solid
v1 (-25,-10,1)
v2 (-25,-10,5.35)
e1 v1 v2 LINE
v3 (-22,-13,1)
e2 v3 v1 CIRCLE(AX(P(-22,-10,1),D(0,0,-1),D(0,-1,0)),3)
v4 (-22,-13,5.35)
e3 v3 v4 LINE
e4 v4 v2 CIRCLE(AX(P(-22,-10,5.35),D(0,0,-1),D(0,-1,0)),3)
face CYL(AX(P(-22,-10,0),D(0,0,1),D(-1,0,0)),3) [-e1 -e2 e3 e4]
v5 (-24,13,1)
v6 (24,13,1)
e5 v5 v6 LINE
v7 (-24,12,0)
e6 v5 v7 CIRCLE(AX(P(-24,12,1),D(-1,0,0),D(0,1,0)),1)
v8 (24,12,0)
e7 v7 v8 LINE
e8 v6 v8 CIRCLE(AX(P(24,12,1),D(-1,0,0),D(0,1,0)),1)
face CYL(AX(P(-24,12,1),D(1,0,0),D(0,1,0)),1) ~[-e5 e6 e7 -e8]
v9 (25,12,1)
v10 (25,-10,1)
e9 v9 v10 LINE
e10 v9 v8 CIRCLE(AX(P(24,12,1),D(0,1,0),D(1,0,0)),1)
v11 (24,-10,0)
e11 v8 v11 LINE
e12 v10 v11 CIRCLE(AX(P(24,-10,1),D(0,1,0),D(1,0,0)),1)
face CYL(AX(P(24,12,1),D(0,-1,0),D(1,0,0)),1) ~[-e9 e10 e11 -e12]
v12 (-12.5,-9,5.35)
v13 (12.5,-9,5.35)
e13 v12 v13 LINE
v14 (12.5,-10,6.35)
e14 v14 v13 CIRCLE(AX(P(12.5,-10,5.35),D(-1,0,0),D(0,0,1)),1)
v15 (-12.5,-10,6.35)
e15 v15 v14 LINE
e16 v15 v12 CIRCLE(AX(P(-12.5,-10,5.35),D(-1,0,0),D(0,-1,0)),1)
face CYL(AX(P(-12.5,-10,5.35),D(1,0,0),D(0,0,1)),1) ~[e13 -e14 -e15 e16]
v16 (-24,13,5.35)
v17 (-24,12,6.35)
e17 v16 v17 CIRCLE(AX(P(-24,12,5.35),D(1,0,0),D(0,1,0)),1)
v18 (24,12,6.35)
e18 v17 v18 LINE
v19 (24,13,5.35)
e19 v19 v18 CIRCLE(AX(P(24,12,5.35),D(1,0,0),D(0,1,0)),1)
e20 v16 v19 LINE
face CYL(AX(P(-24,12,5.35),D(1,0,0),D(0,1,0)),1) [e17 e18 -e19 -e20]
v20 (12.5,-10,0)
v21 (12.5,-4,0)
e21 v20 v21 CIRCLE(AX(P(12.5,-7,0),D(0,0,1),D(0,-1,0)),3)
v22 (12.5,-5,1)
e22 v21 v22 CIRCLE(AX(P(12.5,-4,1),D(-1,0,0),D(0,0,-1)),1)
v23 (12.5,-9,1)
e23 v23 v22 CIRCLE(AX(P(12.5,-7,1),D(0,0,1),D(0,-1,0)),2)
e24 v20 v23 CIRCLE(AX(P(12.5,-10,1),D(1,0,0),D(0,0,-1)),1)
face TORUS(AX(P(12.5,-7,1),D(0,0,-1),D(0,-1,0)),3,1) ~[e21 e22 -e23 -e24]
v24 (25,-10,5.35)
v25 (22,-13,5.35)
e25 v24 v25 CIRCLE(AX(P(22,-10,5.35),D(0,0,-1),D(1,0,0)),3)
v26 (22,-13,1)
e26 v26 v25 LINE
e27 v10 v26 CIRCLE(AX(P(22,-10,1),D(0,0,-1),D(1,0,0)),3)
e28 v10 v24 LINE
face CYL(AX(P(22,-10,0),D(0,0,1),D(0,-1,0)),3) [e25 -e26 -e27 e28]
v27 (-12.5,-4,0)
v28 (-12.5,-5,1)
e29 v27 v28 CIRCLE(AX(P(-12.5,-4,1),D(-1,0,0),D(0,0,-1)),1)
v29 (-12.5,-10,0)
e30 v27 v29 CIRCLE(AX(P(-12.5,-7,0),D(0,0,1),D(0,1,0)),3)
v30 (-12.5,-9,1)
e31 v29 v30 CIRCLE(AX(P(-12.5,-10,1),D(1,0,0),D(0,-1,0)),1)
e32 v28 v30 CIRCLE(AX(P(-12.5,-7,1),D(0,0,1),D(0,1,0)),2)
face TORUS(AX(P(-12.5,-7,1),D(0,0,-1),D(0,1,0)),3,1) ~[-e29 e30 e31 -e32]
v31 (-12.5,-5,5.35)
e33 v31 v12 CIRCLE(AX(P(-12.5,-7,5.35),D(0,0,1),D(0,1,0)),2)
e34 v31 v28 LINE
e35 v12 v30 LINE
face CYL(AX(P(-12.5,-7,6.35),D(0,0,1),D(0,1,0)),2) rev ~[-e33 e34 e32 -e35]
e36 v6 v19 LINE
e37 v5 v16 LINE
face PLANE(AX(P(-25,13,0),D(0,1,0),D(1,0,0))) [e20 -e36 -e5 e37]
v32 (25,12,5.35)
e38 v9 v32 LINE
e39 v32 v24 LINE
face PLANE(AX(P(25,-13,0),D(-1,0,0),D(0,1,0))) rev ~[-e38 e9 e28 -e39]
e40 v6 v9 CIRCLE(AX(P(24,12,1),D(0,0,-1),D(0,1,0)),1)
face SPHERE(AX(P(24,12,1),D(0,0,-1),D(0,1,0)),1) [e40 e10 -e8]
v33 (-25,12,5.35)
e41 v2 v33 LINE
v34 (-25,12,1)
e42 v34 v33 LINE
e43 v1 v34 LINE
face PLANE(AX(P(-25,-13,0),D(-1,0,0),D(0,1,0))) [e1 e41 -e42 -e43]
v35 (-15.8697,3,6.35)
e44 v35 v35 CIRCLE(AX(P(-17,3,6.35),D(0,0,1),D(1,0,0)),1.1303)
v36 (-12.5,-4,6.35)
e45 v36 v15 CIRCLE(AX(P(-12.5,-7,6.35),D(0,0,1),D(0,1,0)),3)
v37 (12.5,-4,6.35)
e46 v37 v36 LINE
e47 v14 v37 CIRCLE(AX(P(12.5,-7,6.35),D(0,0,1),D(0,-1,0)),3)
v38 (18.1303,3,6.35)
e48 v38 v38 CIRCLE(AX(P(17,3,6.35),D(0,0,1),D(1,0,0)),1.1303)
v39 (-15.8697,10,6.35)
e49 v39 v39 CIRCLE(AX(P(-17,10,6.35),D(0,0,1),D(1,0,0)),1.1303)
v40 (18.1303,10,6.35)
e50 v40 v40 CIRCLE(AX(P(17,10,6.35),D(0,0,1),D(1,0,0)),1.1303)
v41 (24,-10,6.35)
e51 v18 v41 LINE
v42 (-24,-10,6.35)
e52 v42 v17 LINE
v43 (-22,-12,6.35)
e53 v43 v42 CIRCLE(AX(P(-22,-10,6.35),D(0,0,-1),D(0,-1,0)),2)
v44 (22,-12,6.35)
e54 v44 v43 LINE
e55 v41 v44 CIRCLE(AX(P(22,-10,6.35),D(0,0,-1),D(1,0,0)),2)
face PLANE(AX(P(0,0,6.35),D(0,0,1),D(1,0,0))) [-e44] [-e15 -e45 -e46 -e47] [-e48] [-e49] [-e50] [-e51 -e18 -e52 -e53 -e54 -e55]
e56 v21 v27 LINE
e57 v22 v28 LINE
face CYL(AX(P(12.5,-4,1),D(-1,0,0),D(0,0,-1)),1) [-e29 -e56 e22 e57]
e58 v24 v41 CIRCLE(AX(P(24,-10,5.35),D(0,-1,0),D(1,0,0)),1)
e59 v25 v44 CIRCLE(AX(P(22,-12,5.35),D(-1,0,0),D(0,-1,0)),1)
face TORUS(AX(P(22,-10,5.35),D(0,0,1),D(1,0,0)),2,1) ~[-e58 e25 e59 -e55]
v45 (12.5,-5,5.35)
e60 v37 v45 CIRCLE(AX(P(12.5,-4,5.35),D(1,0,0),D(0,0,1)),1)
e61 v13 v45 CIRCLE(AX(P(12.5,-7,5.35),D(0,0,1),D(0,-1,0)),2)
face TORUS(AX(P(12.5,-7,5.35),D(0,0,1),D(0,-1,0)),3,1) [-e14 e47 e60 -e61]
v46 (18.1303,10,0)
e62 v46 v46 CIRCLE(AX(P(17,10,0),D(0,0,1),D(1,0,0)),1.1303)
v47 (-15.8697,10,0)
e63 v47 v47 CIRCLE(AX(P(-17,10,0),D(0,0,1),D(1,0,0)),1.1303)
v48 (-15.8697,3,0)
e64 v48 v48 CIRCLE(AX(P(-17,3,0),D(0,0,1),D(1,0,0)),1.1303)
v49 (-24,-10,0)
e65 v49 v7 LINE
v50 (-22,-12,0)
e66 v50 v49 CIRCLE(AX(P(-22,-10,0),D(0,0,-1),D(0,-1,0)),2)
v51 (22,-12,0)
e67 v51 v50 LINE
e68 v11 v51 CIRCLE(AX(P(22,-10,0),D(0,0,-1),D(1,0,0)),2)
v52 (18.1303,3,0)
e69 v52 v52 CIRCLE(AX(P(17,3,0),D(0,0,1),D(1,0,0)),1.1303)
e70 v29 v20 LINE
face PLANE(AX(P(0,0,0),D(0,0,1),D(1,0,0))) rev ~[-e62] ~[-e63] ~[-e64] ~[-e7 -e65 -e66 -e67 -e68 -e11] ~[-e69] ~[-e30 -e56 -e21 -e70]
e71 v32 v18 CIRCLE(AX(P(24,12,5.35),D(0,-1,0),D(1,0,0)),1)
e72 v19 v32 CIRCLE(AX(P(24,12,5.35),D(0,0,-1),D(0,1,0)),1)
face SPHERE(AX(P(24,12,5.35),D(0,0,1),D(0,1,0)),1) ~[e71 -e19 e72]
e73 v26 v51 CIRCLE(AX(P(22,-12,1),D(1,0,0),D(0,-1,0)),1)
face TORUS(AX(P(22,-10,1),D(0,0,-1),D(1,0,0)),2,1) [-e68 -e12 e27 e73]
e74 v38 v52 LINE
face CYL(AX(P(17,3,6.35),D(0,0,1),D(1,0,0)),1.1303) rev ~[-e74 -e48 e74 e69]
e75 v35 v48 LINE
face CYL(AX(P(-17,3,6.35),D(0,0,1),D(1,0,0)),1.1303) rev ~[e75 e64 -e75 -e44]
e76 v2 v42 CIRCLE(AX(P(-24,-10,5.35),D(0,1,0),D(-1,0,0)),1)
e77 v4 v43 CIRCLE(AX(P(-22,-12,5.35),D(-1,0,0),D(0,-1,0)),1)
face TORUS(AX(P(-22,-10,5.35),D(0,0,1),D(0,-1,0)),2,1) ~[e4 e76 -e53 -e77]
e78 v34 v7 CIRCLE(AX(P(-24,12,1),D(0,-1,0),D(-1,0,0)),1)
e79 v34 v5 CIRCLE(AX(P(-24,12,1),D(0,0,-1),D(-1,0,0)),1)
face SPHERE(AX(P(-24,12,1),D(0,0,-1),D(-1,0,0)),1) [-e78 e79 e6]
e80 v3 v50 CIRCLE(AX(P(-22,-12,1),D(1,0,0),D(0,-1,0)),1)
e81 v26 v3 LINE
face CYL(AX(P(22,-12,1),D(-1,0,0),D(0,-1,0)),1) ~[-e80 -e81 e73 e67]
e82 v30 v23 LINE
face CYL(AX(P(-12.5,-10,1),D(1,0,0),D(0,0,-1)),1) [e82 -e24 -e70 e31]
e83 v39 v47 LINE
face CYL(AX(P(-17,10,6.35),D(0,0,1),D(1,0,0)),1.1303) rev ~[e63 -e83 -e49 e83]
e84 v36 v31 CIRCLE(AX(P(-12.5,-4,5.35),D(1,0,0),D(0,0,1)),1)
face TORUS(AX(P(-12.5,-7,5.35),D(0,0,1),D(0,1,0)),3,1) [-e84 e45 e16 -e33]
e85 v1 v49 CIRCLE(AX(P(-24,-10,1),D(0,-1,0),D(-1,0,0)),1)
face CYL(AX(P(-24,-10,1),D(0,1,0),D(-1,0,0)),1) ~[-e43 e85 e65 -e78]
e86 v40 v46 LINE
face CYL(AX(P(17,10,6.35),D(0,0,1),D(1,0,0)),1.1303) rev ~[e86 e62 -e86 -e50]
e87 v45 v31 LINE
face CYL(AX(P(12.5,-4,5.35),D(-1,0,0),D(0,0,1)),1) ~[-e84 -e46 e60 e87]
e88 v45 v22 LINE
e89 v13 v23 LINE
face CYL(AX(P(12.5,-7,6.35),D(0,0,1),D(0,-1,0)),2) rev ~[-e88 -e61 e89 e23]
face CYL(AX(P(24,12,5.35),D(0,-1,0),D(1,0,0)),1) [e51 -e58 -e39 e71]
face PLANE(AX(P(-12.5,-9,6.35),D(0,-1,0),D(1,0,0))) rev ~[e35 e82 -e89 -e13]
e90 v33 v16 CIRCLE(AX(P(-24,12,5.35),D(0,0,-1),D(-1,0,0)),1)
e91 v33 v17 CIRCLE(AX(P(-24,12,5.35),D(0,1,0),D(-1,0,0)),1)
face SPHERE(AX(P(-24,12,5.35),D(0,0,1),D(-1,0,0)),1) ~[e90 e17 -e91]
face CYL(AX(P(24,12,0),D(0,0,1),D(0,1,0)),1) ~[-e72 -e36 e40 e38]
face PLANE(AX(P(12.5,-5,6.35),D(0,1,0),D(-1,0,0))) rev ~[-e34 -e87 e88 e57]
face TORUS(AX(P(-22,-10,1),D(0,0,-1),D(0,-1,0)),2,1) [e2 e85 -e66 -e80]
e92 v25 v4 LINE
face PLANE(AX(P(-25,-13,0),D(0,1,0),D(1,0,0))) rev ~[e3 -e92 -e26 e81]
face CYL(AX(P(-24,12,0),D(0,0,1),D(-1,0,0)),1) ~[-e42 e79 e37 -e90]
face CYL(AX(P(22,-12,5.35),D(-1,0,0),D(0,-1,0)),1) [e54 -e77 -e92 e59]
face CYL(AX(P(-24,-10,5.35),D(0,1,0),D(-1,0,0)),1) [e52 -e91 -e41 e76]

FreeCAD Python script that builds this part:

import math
import FreeCAD as App
import Part
import Sketcher

V = App.Vector


def edges_at(feature, points):
    """Names of the edges that pass closest to the given points."""
    edges = feature.Shape.Edges
    near = lambda p: min(range(len(edges)), key=lambda i: edges[i].distToShape(Part.Vertex(*p))[0])
    return sorted({f"Edge{near(p) + 1}" for p in points})


def add_polygon(sketch, points):
    """Adds a closed chain of lines whose ends are joined by coincident constraints."""
    first, n = sketch.GeometryCount, len(points)
    for a, b in zip(points, points[1:] + points[:1]):
        sketch.addGeometry(Part.LineSegment(App.Vector(*a, 0), App.Vector(*b, 0)), False)
    for i in range(n):
        sketch.addConstraint(Sketcher.Constraint("Coincident", first + i, 2, first + (i + 1) % n, 1))

doc = App.newDocument("Part")
params = doc.addObject("Spreadsheet::Sheet", "Params")
for row, (alias, value) in enumerate([
    ("sketch1_width", "50 mm"),
    ("sketch1_height", "26 mm"),
    ("pad1_length", "6.35 mm"),
    ("sketch3_radius", "2 mm"),
    ("sketch3_width", "25 mm"),
    ("fillet_radius", "1 mm"),
    ("fillet2_radius", "3 mm"),
    ("fillet3_radius", "1 mm"),
], start=1):
    params.set(f"A{row}", alias)
    params.set(f"B{row}", "=" + value)
    params.setAlias(f"B{row}", alias)

body = doc.addObject("PartDesign::Body", "Body")

sketch1 = doc.addObject("Sketcher::SketchObject", "Sketch")
body.addObject(sketch1)
sketch1.AttachmentSupport = (doc.XY_Plane, [""])
sketch1.MapMode = "FlatFace"
add_polygon(sketch1, [(-25, 13), (-25, -13), (25, -13), (25, 13)])
sketch1.addConstraint([
    Sketcher.Constraint("Vertical", 0),
    Sketcher.Constraint("Horizontal", 1),
    Sketcher.Constraint("Vertical", 2),
    Sketcher.Constraint("Horizontal", 3),
    Sketcher.Constraint("Symmetric", 0, 2, 2, 2, -1, 1),
    Sketcher.Constraint("DistanceX", 1, 1, 1, 2, 50.0),
    Sketcher.Constraint("DistanceY", 0, 2, 0, 1, 26.0),
])
sketch1.setExpression("Constraints[9]", "Params.sketch1_width")
sketch1.setExpression("Constraints[10]", "Params.sketch1_height")
pad1 = doc.addObject("PartDesign::Pad", "Pad")
body.addObject(pad1)
pad1.Profile = sketch1
pad1.setExpression("Length", "Params.pad1_length")

sketch2 = doc.addObject("Sketcher::SketchObject", "Sketch001")
body.addObject(sketch2)
sketch2.AttachmentSupport = (doc.XY_Plane, [""])
sketch2.MapMode = "FlatFace"
sketch2.AttachmentOffset = App.Placement(V(0, 0, 6.35), App.Rotation())
sketch2.addGeometry([
    Part.Circle(V(-17, 10, 0), V(0, 0, 1), 1.1),
    Part.Circle(V(-17, 3, 0), V(0, 0, 1), 1.1),
    Part.Circle(V(17, 3, 0), V(0, 0, 1), 1.1),
    Part.Circle(V(17, 10, 0), V(0, 0, 1), 1.1),
], False)
sketch2.addConstraint([
    Sketcher.Constraint("Equal", 0, 1),
    Sketcher.Constraint("Equal", 1, 2),
    Sketcher.Constraint("Equal", 2, 3),
    Sketcher.Constraint("Symmetric", 1, 3, 2, 3, -2),
    Sketcher.Constraint("Symmetric", 0, 3, 3, 3, -2),
    Sketcher.Constraint("Vertical", 0, 3, 1, 3),
    Sketcher.Constraint("DistanceX", 0, 3, -1, 1, 17.0),
    Sketcher.Constraint("DistanceY", -1, 1, 0, 3, 10.0),
    Sketcher.Constraint("DistanceY", -1, 1, 1, 3, 3.0),
    Sketcher.Constraint("Diameter", 0, 2.2606),
])
pocket1 = doc.addObject("PartDesign::Pocket", "Pocket")
body.addObject(pocket1)
pocket1.Profile = sketch2
pocket1.Type = "ThroughAll"

sketch3 = doc.addObject("Sketcher::SketchObject", "Sketch002")
body.addObject(sketch3)
sketch3.AttachmentSupport = (doc.XY_Plane, [""])
sketch3.MapMode = "FlatFace"
sketch3.AttachmentOffset = App.Placement(V(0, 0, 6.35), App.Rotation())
sketch3.addGeometry([
    Part.LineSegment(V(12.5, -5, 0), V(-12.5, -5, 0)),
    Part.ArcOfCircle(Part.Circle(V(-12.5, -7, 0), V(0, 0, 1), 2), math.radians(90), math.radians(270)),
    Part.LineSegment(V(-12.5, -9, 0), V(12.5, -9, 0)),
    Part.ArcOfCircle(Part.Circle(V(12.5, -7, 0), V(0, 0, 1), 2), math.radians(-90), math.radians(90)),
], False)
sketch3.addConstraint([
    Sketcher.Constraint("Tangent", 0, 2, 1, 1),
    Sketcher.Constraint("Tangent", 1, 2, 2, 1),
    Sketcher.Constraint("Tangent", 2, 2, 3, 1),
    Sketcher.Constraint("Tangent", 3, 2, 0, 1),
    Sketcher.Constraint("Horizontal", 0),
    Sketcher.Constraint("Horizontal", 2),
    Sketcher.Constraint("Radius", 1, 2.0),
    Sketcher.Constraint("DistanceX", 0, 2, 0, 1, 25.0),
    Sketcher.Constraint("DistanceY", 1, 3, -1, 1, 7.0),
    Sketcher.Constraint("DistanceX", 1, 3, -1, 1, 12.5),
])
sketch3.setExpression("Constraints[6]", "Params.sketch3_radius")
sketch3.setExpression("Constraints[7]", "Params.sketch3_width")
pocket2 = doc.addObject("PartDesign::Pocket", "Pocket001")
body.addObject(pocket2)
pocket2.Profile = sketch3
pocket2.Type = "ThroughAll"
doc.recompute()

fillet = doc.addObject("PartDesign::Fillet", "Fillet")
body.addObject(fillet)
fillet.Base = (pocket2, edges_at(pocket2, [
    (-25, 13, 3.175),
    (25, 13, 3.175),
    (0, -5, 6.35),
    (0, -5, 0),
]))
fillet.setExpression("Radius", "Params.fillet_radius")
doc.recompute()

fillet2 = doc.addObject("PartDesign::Fillet", "Fillet001")
body.addObject(fillet2)
fillet2.Base = (fillet, edges_at(fillet, [(-25, -13, 3.175), (25, -13, 3.175)]))
fillet2.setExpression("Radius", "Params.fillet2_radius")
doc.recompute()

fillet3 = doc.addObject("PartDesign::Fillet", "Fillet002")
body.addObject(fillet3)
fillet3.Base = (fillet2, edges_at(fillet2, [(-25, 1, 6.35), (-25, 1, 0)]))
fillet3.setExpression("Radius", "Params.fillet3_radius")

doc.recompute()
